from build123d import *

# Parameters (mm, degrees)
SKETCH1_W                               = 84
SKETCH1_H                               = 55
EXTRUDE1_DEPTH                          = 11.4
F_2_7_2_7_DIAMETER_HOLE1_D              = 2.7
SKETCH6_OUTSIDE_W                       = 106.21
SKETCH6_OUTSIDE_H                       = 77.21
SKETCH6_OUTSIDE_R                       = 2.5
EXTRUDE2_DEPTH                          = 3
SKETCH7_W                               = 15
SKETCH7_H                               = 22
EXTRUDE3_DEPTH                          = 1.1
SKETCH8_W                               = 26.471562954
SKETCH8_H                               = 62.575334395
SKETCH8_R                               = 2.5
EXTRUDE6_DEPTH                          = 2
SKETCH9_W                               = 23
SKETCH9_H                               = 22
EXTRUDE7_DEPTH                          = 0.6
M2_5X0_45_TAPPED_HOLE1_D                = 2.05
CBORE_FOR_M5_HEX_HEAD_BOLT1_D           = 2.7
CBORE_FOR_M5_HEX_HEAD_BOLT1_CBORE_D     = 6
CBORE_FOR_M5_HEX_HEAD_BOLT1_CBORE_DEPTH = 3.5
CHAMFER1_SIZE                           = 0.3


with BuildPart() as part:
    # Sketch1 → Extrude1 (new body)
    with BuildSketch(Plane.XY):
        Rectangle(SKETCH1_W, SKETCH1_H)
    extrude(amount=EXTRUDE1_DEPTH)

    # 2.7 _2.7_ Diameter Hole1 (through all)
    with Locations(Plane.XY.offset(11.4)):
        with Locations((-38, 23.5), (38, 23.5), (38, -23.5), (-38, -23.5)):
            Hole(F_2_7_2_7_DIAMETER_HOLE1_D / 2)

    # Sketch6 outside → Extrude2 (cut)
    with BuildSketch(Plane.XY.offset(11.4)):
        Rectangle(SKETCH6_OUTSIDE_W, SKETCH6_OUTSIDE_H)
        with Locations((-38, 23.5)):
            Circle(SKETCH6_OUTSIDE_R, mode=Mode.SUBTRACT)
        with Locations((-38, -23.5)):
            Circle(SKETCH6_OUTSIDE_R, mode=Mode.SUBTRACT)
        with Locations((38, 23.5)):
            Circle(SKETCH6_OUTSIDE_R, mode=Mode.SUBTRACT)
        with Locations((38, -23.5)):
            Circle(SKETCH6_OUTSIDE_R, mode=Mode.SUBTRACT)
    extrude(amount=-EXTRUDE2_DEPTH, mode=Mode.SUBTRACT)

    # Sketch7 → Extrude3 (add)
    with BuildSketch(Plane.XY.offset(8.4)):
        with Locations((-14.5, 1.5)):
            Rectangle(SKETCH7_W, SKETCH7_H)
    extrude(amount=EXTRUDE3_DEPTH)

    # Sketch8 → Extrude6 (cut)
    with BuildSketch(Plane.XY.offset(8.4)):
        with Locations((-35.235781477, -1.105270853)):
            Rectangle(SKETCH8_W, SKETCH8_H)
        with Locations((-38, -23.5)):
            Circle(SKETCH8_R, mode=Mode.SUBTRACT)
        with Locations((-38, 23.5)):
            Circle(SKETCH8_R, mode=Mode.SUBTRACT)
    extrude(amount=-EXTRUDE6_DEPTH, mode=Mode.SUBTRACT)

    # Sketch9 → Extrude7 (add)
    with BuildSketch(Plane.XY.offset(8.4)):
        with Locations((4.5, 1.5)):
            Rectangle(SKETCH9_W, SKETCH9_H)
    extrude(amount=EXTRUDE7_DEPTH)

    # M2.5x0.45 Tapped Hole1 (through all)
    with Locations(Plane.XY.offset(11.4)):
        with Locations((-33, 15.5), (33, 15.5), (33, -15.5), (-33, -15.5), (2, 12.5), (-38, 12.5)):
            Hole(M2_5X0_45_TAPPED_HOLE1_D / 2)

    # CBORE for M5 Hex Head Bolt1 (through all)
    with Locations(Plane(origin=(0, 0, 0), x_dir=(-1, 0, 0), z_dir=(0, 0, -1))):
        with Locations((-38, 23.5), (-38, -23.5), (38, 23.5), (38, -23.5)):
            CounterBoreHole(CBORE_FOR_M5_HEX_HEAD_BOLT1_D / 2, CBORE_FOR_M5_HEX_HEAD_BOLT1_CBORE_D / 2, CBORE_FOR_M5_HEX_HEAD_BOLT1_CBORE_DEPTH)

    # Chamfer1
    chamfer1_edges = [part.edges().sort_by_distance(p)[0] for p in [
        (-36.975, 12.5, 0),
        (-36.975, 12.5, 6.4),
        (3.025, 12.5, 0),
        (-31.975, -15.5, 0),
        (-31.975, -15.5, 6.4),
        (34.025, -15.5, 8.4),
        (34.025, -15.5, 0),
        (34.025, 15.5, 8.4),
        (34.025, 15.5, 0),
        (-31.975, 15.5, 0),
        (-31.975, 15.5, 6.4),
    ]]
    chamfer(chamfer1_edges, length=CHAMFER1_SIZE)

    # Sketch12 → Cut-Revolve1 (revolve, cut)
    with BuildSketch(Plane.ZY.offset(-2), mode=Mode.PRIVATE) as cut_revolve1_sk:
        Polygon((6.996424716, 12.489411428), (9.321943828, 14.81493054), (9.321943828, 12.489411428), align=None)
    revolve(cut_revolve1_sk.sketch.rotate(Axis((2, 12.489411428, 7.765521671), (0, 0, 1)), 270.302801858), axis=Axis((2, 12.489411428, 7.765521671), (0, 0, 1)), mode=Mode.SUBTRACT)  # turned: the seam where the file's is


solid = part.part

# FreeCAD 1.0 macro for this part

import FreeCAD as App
import Part
import Sketcher
from FreeCAD import Vector


def edges_at(feature, points):
    """Names of the edges that pass closest to the given points."""
    edges = feature.Shape.Edges
    near = lambda p: min(range(len(edges)), key=lambda i: edges[i].distToShape(Part.Vertex(*p))[0])
    return sorted({f"Edge{near(p) + 1}" for p in points})

doc = App.newDocument("Part")
body = doc.addObject("PartDesign::Body", "Body")

# Sketch on XY plane
sketch1 = body.newObject("Sketcher::SketchObject", "Sketch")
sketch1.AttachmentSupport = (doc.getObject("XY_Plane"), [""])
sketch1.MapMode = "FlatFace"
sketch1.addGeometry(Part.LineSegment(Vector(-42, 28, 0), Vector(-42, -28, 0)), False)
sketch1.addGeometry(Part.LineSegment(Vector(-42, -28, 0), Vector(42, -28, 0)), False)
sketch1.addGeometry(Part.LineSegment(Vector(42, -28, 0), Vector(42, 28, 0)), False)
sketch1.addGeometry(Part.LineSegment(Vector(42, 28, 0), Vector(-42, 28, 0)), False)
sketch1.addConstraint(Sketcher.Constraint("Coincident", 0, 2, 1, 1))
sketch1.addConstraint(Sketcher.Constraint("Coincident", 1, 2, 2, 1))
sketch1.addConstraint(Sketcher.Constraint("Coincident", 2, 2, 3, 1))
sketch1.addConstraint(Sketcher.Constraint("Coincident", 3, 2, 0, 1))
sketch1.addConstraint(Sketcher.Constraint("Vertical", 0))
sketch1.addConstraint(Sketcher.Constraint("Horizontal", 1))
sketch1.addConstraint(Sketcher.Constraint("Vertical", 2))
sketch1.addConstraint(Sketcher.Constraint("Horizontal", 3))
sketch1.addConstraint(Sketcher.Constraint("Symmetric", 0, 2, 2, 2, -1, 1))
sketch1.addConstraint(Sketcher.Constraint("DistanceX", 1, 1, 1, 2, 84.0))
sketch1.addConstraint(Sketcher.Constraint("DistanceY", 0, 2, 0, 1, 55.0))
pad1 = body.newObject("PartDesign::Pad", "Pad")
pad1.Profile = sketch1
pad1.Length = 11.4

# Sketch on XY plane
sketch2 = body.newObject("Sketcher::SketchObject", "Sketch001")
sketch2.AttachmentSupport = (doc.getObject("XY_Plane"), [""])
sketch2.MapMode = "FlatFace"
sketch2.AttachmentOffset = App.Placement(Vector(0, 0, 11.4), App.Rotation())
sketch2.addGeometry(Part.Circle(Vector(-38, 23.5, 0), Vector(0, 0, 1), 1.4), False)
sketch2.addGeometry(Part.Circle(Vector(38, 23.5, 0), Vector(0, 0, 1), 1.4), False)
sketch2.addGeometry(Part.Circle(Vector(38, -23.5, 0), Vector(0, 0, 1), 1.4), False)
sketch2.addGeometry(Part.Circle(Vector(-38, -23.5, 0), Vector(0, 0, 1), 1.4), False)
sketch2.addConstraint(Sketcher.Constraint("Equal", 0, 1))
sketch2.addConstraint(Sketcher.Constraint("Equal", 1, 2))
sketch2.addConstraint(Sketcher.Constraint("Equal", 2, 3))
sketch2.addConstraint(Sketcher.Constraint("Symmetric", 0, 3, 2, 3, -1, 1))
sketch2.addConstraint(Sketcher.Constraint("Symmetric", 1, 3, 3, 3, -1, 1))
sketch2.addConstraint(Sketcher.Constraint("Symmetric", 0, 3, 1, 3, -2))
sketch2.addConstraint(Sketcher.Constraint("Diameter", 0, 2.7))
sketch2.addConstraint(Sketcher.Constraint("DistanceX", 0, 3, -1, 1, 38.0))
sketch2.addConstraint(Sketcher.Constraint("DistanceY", 2, 3, 1, 3, 47.0))
doc.recompute()
hole = body.newObject("PartDesign::Hole", "Hole")
hole.Profile = sketch2
hole.ThreadType = "None"
hole.Diameter = 2.7
hole.DepthType = "ThroughAll"

# Sketch on XY plane
sketch3 = body.newObject("Sketcher::SketchObject", "Sketch002")
sketch3.AttachmentSupport = (doc.getObject("XY_Plane"), [""])
sketch3.MapMode = "FlatFace"
sketch3.AttachmentOffset = App.Placement(Vector(0, 0, 11.4), App.Rotation())
sketch3.addGeometry(Part.LineSegment(Vector(-53.1, 38.6, 0), Vector(-53.1, -38.6, 0)), False)
sketch3.addGeometry(Part.LineSegment(Vector(-53.1, -38.6, 0), Vector(53.1, -38.6, 0)), False)
sketch3.addGeometry(Part.LineSegment(Vector(53.1, -38.6, 0), Vector(53.1, 38.6, 0)), False)
sketch3.addGeometry(Part.LineSegment(Vector(53.1, 38.6, 0), Vector(-53.1, 38.6, 0)), False)
sketch3.addGeometry(Part.Circle(Vector(-38, -23.5, 0), Vector(0, 0, 1), 2.5), False)
sketch3.addGeometry(Part.Circle(Vector(38, -23.5, 0), Vector(0, 0, 1), 2.5), False)
sketch3.addGeometry(Part.Circle(Vector(-38, 23.5, 0), Vector(0, 0, 1), 2.5), False)
sketch3.addGeometry(Part.Circle(Vector(38, 23.5, 0), Vector(0, 0, 1), 2.5), False)
sketch3.addConstraint(Sketcher.Constraint("Coincident", 0, 2, 1, 1))
sketch3.addConstraint(Sketcher.Constraint("Coincident", 1, 2, 2, 1))
sketch3.addConstraint(Sketcher.Constraint("Coincident", 2, 2, 3, 1))
sketch3.addConstraint(Sketcher.Constraint("Coincident", 3, 2, 0, 1))
sketch3.addConstraint(Sketcher.Constraint("Vertical", 0))
sketch3.addConstraint(Sketcher.Constraint("Horizontal", 1))
sketch3.addConstraint(Sketcher.Constraint("Vertical", 2))
sketch3.addConstraint(Sketcher.Constraint("Horizontal", 3))
sketch3.addConstraint(Sketcher.Constraint("Equal", 4, 5))
sketch3.addConstraint(Sketcher.Constraint("Equal", 5, 6))
sketch3.addConstraint(Sketcher.Constraint("Equal", 6, 7))
sketch3.addConstraint(Sketcher.Constraint("Symmetric", 5, 3, 6, 3, -1, 1))
sketch3.addConstraint(Sketcher.Constraint("Symmetric", 4, 3, 7, 3, -1, 1))
sketch3.addConstraint(Sketcher.Constraint("Symmetric", 0, 2, 2, 2, -1, 1))
sketch3.addConstraint(Sketcher.Constraint("Symmetric", 4, 3, 5, 3, -2))
sketch3.addConstraint(Sketcher.Constraint("Diameter", 4, 5.0))
sketch3.addConstraint(Sketcher.Constraint("DistanceX", 4, 3, -1, 1, 38.0))
sketch3.addConstraint(Sketcher.Constraint("DistanceY", 4, 3, 6, 3, 47.0))
sketch3.addConstraint(Sketcher.Constraint("DistanceX", 1, 1, 1, 2, 106.21))
sketch3.addConstraint(Sketcher.Constraint("DistanceY", 0, 2, 0, 1, 77.21))
pocket1 = body.newObject("PartDesign::Pocket", "Pocket")
pocket1.Profile = sketch3
pocket1.Length = 3

# Sketch on XY plane
sketch4 = body.newObject("Sketcher::SketchObject", "Sketch003")
sketch4.AttachmentSupport = (doc.getObject("XY_Plane"), [""])
sketch4.MapMode = "FlatFace"
sketch4.AttachmentOffset = App.Placement(Vector(0, 0, 8.4), App.Rotation())
sketch4.addGeometry(Part.LineSegment(Vector(-22, 12, 0), Vector(-22, -10, 0)), False)
sketch4.addGeometry(Part.LineSegment(Vector(-22, -10, 0), Vector(-7, -10, 0)), False)
sketch4.addGeometry(Part.LineSegment(Vector(-7, -10, 0), Vector(-7, 12, 0)), False)
sketch4.addGeometry(Part.LineSegment(Vector(-7, 12, 0), Vector(-22, 12, 0)), False)
sketch4.addConstraint(Sketcher.Constraint("Coincident", 0, 2, 1, 1))
sketch4.addConstraint(Sketcher.Constraint("Coincident", 1, 2, 2, 1))
sketch4.addConstraint(Sketcher.Constraint("Coincident", 2, 2, 3, 1))
sketch4.addConstraint(Sketcher.Constraint("Coincident", 3, 2, 0, 1))
sketch4.addConstraint(Sketcher.Constraint("Vertical", 0))
sketch4.addConstraint(Sketcher.Constraint("Horizontal", 1))
sketch4.addConstraint(Sketcher.Constraint("Vertical", 2))
sketch4.addConstraint(Sketcher.Constraint("Horizontal", 3))
sketch4.addConstraint(Sketcher.Constraint("DistanceX", 1, 1, 1, 2, 15.0))
sketch4.addConstraint(Sketcher.Constraint("DistanceY", 0, 2, 0, 1, 22.0))
sketch4.addConstraint(Sketcher.Constraint("DistanceX", 0, 2, -1, 1, 22.0))
sketch4.addConstraint(Sketcher.Constraint("DistanceY", 0, 2, -1, 1, 9.5))
pad2 = body.newObject("PartDesign::Pad", "Pad001")
pad2.Profile = sketch4
pad2.Length = 1.1

# Sketch on XY plane
sketch5 = body.newObject("Sketcher::SketchObject", "Sketch004")
sketch5.AttachmentSupport = (doc.getObject("XY_Plane"), [""])
sketch5.MapMode = "FlatFace"
sketch5.AttachmentOffset = App.Placement(Vector(0, 0, 8.4), App.Rotation())
sketch5.addGeometry(Part.LineSegment(Vector(-48.5, 30.2, 0), Vector(-48.5, -32.4, 0)), False)
sketch5.addGeometry(Part.LineSegment(Vector(-48.5, -32.4, 0), Vector(-22, -32.4, 0)), False)
sketch5.addGeometry(Part.LineSegment(Vector(-22, -32.4, 0), Vector(-22, 30.2, 0)), False)
sketch5.addGeometry(Part.LineSegment(Vector(-22, 30.2, 0), Vector(-48.5, 30.2, 0)), False)
sketch5.addGeometry(Part.Circle(Vector(-38, -23.5, 0), Vector(0, 0, 1), 2.5), False)
sketch5.addGeometry(Part.Circle(Vector(-38, 23.5, 0), Vector(0, 0, 1), 2.5), False)
sketch5.addConstraint(Sketcher.Constraint("Coincident", 0, 2, 1, 1))
sketch5.addConstraint(Sketcher.Constraint("Coincident", 1, 2, 2, 1))
sketch5.addConstraint(Sketcher.Constraint("Coincident", 2, 2, 3, 1))
sketch5.addConstraint(Sketcher.Constraint("Coincident", 3, 2, 0, 1))
sketch5.addConstraint(Sketcher.Constraint("Vertical", 0))
sketch5.addConstraint(Sketcher.Constraint("Horizontal", 1))
sketch5.addConstraint(Sketcher.Constraint("Vertical", 2))
sketch5.addConstraint(Sketcher.Constraint("Horizontal", 3))
sketch5.addConstraint(Sketcher.Constraint("Equal", 4, 5))
sketch5.addConstraint(Sketcher.Constraint("Symmetric", 4, 3, 5, 3, -1))
sketch5.addConstraint(Sketcher.Constraint("Diameter", 4, 5.0))
sketch5.addConstraint(Sketcher.Constraint("DistanceX", 4, 3, -1, 1, 38.0))
sketch5.addConstraint(Sketcher.Constraint("DistanceX", 1, 2, -1, 1, 22.0))
sketch5.addConstraint(Sketcher.Constraint("DistanceY", 4, 3, 5, 3, 47.0))
sketch5.addConstraint(Sketcher.Constraint("DistanceX", 1, 1, 1, 2, 26.471563))
sketch5.addConstraint(Sketcher.Constraint("DistanceY", 0, 2, 0, 1, 62.575334))
sketch5.addConstraint(Sketcher.Constraint("DistanceY", 0, 2, -1, 1, 32.392938))
pocket2 = body.newObject("PartDesign::Pocket", "Pocket001")
pocket2.Profile = sketch5
pocket2.Length = 2

# Sketch on XY plane
sketch6 = body.newObject("Sketcher::SketchObject", "Sketch005")
sketch6.AttachmentSupport = (doc.getObject("XY_Plane"), [""])
sketch6.MapMode = "FlatFace"
sketch6.AttachmentOffset = App.Placement(Vector(0, 0, 8.4), App.Rotation())
sketch6.addGeometry(Part.LineSegment(Vector(-7, 12, 0), Vector(-7, -10, 0)), False)
sketch6.addGeometry(Part.LineSegment(Vector(-7, -10, 0), Vector(16, -10, 0)), False)
sketch6.addGeometry(Part.LineSegment(Vector(16, -10, 0), Vector(16, 12, 0)), False)
sketch6.addGeometry(Part.LineSegment(Vector(16, 12, 0), Vector(-7, 12, 0)), False)
sketch6.addConstraint(Sketcher.Constraint("Coincident", 0, 2, 1, 1))
sketch6.addConstraint(Sketcher.Constraint("Coincident", 1, 2, 2, 1))
sketch6.addConstraint(Sketcher.Constraint("Coincident", 2, 2, 3, 1))
sketch6.addConstraint(Sketcher.Constraint("Coincident", 3, 2, 0, 1))
sketch6.addConstraint(Sketcher.Constraint("Vertical", 0))
sketch6.addConstraint(Sketcher.Constraint("Horizontal", 1))
sketch6.addConstraint(Sketcher.Constraint("Vertical", 2))
sketch6.addConstraint(Sketcher.Constraint("Horizontal", 3))
sketch6.addConstraint(Sketcher.Constraint("DistanceX", 1, 1, 1, 2, 23.0))
sketch6.addConstraint(Sketcher.Constraint("DistanceY", 0, 2, 0, 1, 22.0))
sketch6.addConstraint(Sketcher.Constraint("DistanceX", 0, 2, -1, 1, 7.0))
sketch6.addConstraint(Sketcher.Constraint("DistanceY", 0, 2, -1, 1, 9.5))
pad3 = body.newObject("PartDesign::Pad", "Pad002")
pad3.Profile = sketch6
pad3.Length = 0.6

# Sketch on XY plane
sketch7 = body.newObject("Sketcher::SketchObject", "Sketch006")
sketch7.AttachmentSupport = (doc.getObject("XY_Plane"), [""])
sketch7.MapMode = "FlatFace"
sketch7.AttachmentOffset = App.Placement(Vector(0, 0, 11.4), App.Rotation())
sketch7.addGeometry(Part.Circle(Vector(-33, 15.5, 0), Vector(0, 0, 1), 1), False)
sketch7.addGeometry(Part.Circle(Vector(33, 15.5, 0), Vector(0, 0, 1), 1), False)
sketch7.addGeometry(Part.Circle(Vector(33, -15.5, 0), Vector(0, 0, 1), 1), False)
sketch7.addGeometry(Part.Circle(Vector(-33, -15.5, 0), Vector(0, 0, 1), 1), False)
sketch7.addGeometry(Part.Circle(Vector(2, 12.5, 0), Vector(0, 0, 1), 1), False)
sketch7.addGeometry(Part.Circle(Vector(-38, 12.5, 0), Vector(0, 0, 1), 1), False)
sketch7.addConstraint(Sketcher.Constraint("Equal", 0, 1))
sketch7.addConstraint(Sketcher.Constraint("Equal", 1, 2))
sketch7.addConstraint(Sketcher.Constraint("Equal", 2, 3))
sketch7.addConstraint(Sketcher.Constraint("Equal", 3, 4))
sketch7.addConstraint(Sketcher.Constraint("Equal", 4, 5))
sketch7.addConstraint(Sketcher.Constraint("Symmetric", 0, 3, 2, 3, -1, 1))
sketch7.addConstraint(Sketcher.Constraint("Symmetric", 1, 3, 3, 3, -1, 1))
sketch7.addConstraint(Sketcher.Constraint("Symmetric", 0, 3, 1, 3, -2))
sketch7.addConstraint(Sketcher.Constraint("Horizontal", 4, 3, 5, 3))
sketch7.addConstraint(Sketcher.Constraint("Diameter", 0, 2.05))
sketch7.addConstraint(Sketcher.Constraint("DistanceX", 0, 3, -1, 1, 33.0))
sketch7.addConstraint(Sketcher.Constraint("DistanceX", -1, 1, 4, 3, 2.0))
sketch7.addConstraint(Sketcher.Constraint("DistanceX", 5, 3, -1, 1, 38.0))
sketch7.addConstraint(Sketcher.Constraint("DistanceY", 2, 3, 1, 3, 31.0))
sketch7.addConstraint(Sketcher.Constraint("DistanceY", 4, 3, 1, 3, 3.0))
doc.recompute()
hole2 = body.newObject("PartDesign::Hole", "Hole001")
hole2.Profile = sketch7
hole2.ThreadType = "None"
hole2.Diameter = 2.05
hole2.DepthType = "ThroughAll"

# Sketch on XY plane
sketch8 = body.newObject("Sketcher::SketchObject", "Sketch007")
sketch8.AttachmentSupport = (doc.getObject("XY_Plane"), [""])
sketch8.MapMode = "FlatFace"
sketch8.addGeometry(Part.Circle(Vector(38, 23.5, 0), Vector(0, 0, 1), 1.4), False)
sketch8.addGeometry(Part.Circle(Vector(38, -23.5, 0), Vector(0, 0, 1), 1.4), False)
sketch8.addGeometry(Part.Circle(Vector(-38, 23.5, 0), Vector(0, 0, 1), 1.4), False)
sketch8.addGeometry(Part.Circle(Vector(-38, -23.5, 0), Vector(0, 0, 1), 1.4), False)
sketch8.addConstraint(Sketcher.Constraint("Equal", 0, 1))
sketch8.addConstraint(Sketcher.Constraint("Equal", 1, 2))
sketch8.addConstraint(Sketcher.Constraint("Equal", 2, 3))
sketch8.addConstraint(Sketcher.Constraint("Symmetric", 1, 3, 2, 3, -1, 1))
sketch8.addConstraint(Sketcher.Constraint("Symmetric", 0, 3, 3, 3, -1, 1))
sketch8.addConstraint(Sketcher.Constraint("Symmetric", 0, 3, 2, 3, -2))
sketch8.addConstraint(Sketcher.Constraint("Diameter", 0, 2.7))
sketch8.addConstraint(Sketcher.Constraint("DistanceX", -1, 1, 0, 3, 38.0))
sketch8.addConstraint(Sketcher.Constraint("DistanceY", 1, 3, 0, 3, 47.0))
doc.recompute()
hole3 = body.newObject("PartDesign::Hole", "Hole002")
hole3.Profile = sketch8
hole3.ThreadType = "None"
hole3.Diameter = 2.7
hole3.DepthType = "ThroughAll"
hole3.HoleCutType = "Counterbore"
hole3.HoleCutDiameter = 6
hole3.HoleCutDepth = 3.5
hole3.Reversed = True
doc.recompute()

chamfer = body.newObject("PartDesign::Chamfer", "Chamfer")
chamfer.Base = (hole3, edges_at(hole3, [
    (-36.975, 12.5, 0),
    (-36.975, 12.5, 6.4),
    (3.025, 12.5, 0),
    (-31.975, -15.5, 0),
    (-31.975, -15.5, 6.4),
    (34.025, -15.5, 8.4),
    (34.025, -15.5, 0),
    (34.025, 15.5, 8.4),
    (34.025, 15.5, 0),
    (-31.975, 15.5, 0),
    (-31.975, 15.5, 6.4),
]))
chamfer.Size = 0.3

# Sketch on YZ plane
sketch9 = body.newObject("Sketcher::SketchObject", "Sketch008")
sketch9.AttachmentSupport = (doc.getObject("YZ_Plane"), [""])
sketch9.MapMode = "FlatFace"
sketch9.AttachmentOffset = App.Placement(Vector(0, 0, 2), App.Rotation())
sketch9.addGeometry(Part.LineSegment(Vector(14.8, 9.3, 0), Vector(12.5, 7, 0)), False)
sketch9.addGeometry(Part.LineSegment(Vector(12.5, 7, 0), Vector(12.5, 9.3, 0)), False)
sketch9.addGeometry(Part.LineSegment(Vector(12.5, 9.3, 0), Vector(14.8, 9.3, 0)), False)
sketch9.addGeometry(Part.LineSegment(Vector(12.5, 7, 0), Vector(12.5, 9.3, 0)), True)  # axis
sketch9.addConstraint(Sketcher.Constraint("Coincident", 0, 2, 1, 1))
sketch9.addConstraint(Sketcher.Constraint("Coincident", 1, 2, 2, 1))
sketch9.addConstraint(Sketcher.Constraint("Coincident", 2, 2, 0, 1))
sketch9.addConstraint(Sketcher.Constraint("Vertical", 1))
sketch9.addConstraint(Sketcher.Constraint("Horizontal", 2))
sketch9.addConstraint(Sketcher.Constraint("Vertical", 3))
sketch9.addConstraint(Sketcher.Constraint("Coincident", 3, 1, 0, 2))
sketch9.addConstraint(Sketcher.Constraint("Horizontal", 2, 2, 3, 2))
sketch9.addConstraint(Sketcher.Constraint("Equal", 2, 1))
sketch9.addConstraint(Sketcher.Constraint("DistanceX", 2, 1, 2, 2, 2.325519))
sketch9.addConstraint(Sketcher.Constraint("DistanceX", -1, 1, 0, 2, 12.489411))
sketch9.addConstraint(Sketcher.Constraint("DistanceY", -1, 1, 0, 2, 6.996425))
groove = body.newObject("PartDesign::Groove", "Groove")
groove.Profile = sketch9
groove.ReferenceAxis = (sketch9, ["Axis0"])
groove.Angle = 360

doc.recompute()
